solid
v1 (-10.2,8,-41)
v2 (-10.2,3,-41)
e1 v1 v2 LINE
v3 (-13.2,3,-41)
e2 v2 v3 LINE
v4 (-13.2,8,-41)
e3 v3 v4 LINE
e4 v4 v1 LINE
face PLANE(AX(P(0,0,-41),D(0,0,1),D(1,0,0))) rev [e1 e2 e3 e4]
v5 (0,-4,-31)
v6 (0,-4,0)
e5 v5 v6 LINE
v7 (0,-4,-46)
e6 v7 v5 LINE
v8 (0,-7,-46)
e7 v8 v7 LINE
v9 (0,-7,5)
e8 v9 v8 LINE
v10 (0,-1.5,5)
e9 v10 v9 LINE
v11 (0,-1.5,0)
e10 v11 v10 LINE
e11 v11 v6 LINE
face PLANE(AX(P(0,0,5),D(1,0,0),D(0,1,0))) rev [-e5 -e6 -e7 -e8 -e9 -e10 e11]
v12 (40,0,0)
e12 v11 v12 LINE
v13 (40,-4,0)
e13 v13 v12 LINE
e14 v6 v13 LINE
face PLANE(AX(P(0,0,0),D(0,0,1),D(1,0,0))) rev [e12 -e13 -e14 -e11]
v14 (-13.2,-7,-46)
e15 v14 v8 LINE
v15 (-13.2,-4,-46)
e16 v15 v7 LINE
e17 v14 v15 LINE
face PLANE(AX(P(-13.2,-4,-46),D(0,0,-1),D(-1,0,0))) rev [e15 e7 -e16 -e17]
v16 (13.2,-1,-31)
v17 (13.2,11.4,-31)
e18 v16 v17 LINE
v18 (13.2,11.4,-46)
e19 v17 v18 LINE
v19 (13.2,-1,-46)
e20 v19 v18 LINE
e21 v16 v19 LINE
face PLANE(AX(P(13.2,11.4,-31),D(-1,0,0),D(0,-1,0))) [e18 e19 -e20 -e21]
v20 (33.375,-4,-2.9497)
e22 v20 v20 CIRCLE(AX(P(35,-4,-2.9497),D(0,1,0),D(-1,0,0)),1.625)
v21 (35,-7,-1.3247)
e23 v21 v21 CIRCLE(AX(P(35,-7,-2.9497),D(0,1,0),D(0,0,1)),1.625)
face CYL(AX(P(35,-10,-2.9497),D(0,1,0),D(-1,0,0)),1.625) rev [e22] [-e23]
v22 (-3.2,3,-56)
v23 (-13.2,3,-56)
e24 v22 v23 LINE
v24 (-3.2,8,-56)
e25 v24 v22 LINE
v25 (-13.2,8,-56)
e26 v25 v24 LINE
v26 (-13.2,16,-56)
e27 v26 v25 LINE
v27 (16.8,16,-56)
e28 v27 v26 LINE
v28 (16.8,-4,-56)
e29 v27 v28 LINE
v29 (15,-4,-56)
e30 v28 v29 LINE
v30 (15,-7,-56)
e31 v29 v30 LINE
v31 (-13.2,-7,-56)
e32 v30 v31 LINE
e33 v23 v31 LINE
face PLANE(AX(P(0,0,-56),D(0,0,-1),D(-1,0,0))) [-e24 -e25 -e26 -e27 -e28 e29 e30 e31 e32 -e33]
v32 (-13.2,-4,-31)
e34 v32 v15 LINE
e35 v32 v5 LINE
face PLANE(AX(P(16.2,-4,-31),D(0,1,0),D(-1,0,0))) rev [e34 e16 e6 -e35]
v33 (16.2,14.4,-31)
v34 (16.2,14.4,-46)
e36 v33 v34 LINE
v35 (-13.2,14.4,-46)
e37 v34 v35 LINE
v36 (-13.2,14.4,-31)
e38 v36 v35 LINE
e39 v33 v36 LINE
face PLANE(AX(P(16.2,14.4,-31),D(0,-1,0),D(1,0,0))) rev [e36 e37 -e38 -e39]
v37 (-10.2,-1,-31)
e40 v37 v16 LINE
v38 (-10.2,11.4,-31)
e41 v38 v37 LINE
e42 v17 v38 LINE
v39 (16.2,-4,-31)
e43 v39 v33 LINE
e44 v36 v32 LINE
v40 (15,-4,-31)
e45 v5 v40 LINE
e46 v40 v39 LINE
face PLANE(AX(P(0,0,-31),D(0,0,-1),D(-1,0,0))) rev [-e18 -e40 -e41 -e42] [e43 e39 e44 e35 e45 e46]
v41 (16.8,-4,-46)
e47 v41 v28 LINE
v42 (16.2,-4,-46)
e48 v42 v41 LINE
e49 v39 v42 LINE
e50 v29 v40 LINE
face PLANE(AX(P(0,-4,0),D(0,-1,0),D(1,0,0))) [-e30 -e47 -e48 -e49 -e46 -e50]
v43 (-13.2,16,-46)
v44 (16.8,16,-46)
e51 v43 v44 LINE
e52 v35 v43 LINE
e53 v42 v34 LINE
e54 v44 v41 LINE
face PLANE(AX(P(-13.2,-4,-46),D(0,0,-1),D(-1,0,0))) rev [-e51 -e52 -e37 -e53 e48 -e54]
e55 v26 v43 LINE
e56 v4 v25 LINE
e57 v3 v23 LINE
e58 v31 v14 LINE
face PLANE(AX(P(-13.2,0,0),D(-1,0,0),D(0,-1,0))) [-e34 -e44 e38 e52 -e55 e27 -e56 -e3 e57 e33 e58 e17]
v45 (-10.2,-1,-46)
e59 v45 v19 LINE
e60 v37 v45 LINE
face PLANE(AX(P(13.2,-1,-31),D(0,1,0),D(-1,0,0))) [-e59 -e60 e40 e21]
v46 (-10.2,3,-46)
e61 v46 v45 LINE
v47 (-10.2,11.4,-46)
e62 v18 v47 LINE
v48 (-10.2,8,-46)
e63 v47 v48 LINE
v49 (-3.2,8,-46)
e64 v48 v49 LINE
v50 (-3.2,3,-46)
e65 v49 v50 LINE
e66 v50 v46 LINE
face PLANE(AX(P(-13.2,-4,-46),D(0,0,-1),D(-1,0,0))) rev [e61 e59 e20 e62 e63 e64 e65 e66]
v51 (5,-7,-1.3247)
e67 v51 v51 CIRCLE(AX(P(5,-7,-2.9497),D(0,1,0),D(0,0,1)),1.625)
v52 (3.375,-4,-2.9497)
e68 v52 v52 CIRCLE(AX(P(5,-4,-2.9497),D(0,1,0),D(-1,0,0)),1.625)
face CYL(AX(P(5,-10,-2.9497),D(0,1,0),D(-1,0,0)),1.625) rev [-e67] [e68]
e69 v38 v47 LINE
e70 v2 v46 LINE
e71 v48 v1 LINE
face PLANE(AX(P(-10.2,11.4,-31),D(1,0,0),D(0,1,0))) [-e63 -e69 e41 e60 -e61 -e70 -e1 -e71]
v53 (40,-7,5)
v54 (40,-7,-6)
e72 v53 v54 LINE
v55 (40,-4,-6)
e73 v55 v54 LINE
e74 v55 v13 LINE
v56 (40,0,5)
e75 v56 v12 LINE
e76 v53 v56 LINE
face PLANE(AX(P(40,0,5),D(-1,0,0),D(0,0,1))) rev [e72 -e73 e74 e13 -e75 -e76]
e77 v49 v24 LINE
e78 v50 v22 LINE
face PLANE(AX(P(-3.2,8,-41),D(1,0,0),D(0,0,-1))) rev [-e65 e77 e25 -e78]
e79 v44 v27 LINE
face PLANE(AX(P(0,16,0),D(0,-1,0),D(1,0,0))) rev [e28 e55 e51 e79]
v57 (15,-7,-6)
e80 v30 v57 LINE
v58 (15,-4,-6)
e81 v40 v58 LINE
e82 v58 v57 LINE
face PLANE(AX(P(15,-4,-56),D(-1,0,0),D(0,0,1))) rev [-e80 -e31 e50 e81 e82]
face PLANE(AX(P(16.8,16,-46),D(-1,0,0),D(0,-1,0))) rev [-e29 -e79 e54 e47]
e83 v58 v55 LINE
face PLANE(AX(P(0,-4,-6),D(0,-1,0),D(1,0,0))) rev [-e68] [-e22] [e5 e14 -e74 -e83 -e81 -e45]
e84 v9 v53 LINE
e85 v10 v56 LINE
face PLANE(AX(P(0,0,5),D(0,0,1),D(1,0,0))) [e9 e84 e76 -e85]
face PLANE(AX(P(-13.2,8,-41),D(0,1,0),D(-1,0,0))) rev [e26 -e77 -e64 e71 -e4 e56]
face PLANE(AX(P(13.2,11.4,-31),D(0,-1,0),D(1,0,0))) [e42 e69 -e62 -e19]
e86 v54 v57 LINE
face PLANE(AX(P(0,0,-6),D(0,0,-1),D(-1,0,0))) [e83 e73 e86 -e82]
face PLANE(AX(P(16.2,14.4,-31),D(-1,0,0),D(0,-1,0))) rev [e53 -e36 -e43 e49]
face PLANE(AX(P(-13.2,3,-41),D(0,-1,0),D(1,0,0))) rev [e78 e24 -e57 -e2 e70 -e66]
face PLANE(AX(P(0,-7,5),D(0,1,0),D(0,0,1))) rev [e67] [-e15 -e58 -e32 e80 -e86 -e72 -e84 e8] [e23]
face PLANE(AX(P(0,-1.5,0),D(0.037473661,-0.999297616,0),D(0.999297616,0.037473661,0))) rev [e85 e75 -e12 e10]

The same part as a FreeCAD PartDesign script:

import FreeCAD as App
import Part
import Sketcher
from FreeCAD import Vector


def add_polygon(sketch, points):
    """Adds a closed chain of lines whose ends are joined by coincident constraints."""
    first, n = sketch.GeometryCount, len(points)
    for a, b in zip(points, points[1:] + points[:1]):
        sketch.addGeometry(Part.LineSegment(App.Vector(*a, 0), App.Vector(*b, 0)), False)
    for i in range(n):
        sketch.addConstraint(Sketcher.Constraint("Coincident", first + i, 2, first + (i + 1) % n, 1))

doc = App.newDocument("Part")
params = doc.addObject("Spreadsheet::Sheet", "Params")
for row, (alias, value) in enumerate([
    ("sketch1_width", "40 mm"),
    ("sketch1_height", "7 mm"),
    ("pad1_length", "5 mm"),
    ("sketch2_width", "40 mm"),
    ("sketch2_height", "1.5 mm"),
    ("sketch3_width", "40 mm"),
    ("sketch3_height", "3 mm"),
    ("pad2_length", "6 mm"),
    ("sketch4_diameter", "3.25 mm"),
    ("pocket2_length", "6 mm"),
    ("sketch5_width", "15 mm"),
    ("sketch5_height", "3 mm"),
    ("pad3_length", "50 mm"),
    ("sketch6_width", "3 mm"),
    ("sketch6_height", "10 mm"),
    ("pad4_length", "13.2 mm"),
    ("sketch7_width", "30 mm"),
    ("sketch7_height", "10 mm"),
    ("pad5_length", "20 mm"),
    ("sketch8_width", "29.4 mm"),
    ("sketch8_width2", "23.4 mm"),
    ("sketch8_height", "18.4 mm"),
    ("sketch8_height2", "12.4 mm"),
    ("pad6_length", "15 mm"),
    ("sketch9_width", "10 mm"),
    ("sketch9_height", "5 mm"),
    ("pocket3_length", "15 mm"),
], start=1):
    params.set(f"A{row}", alias)
    params.set(f"B{row}", "=" + value)
    params.setAlias(f"B{row}", alias)

body = doc.addObject("PartDesign::Body", "Body")

sketch1 = body.newObject("Sketcher::SketchObject", "Sketch")
sketch1.AttachmentSupport = (doc.getObject("XY_Plane"), [""])
sketch1.MapMode = "FlatFace"
add_polygon(sketch1, [(0, 0), (0, -7), (40, -7), (40, 0)])
sketch1.addConstraint([
    Sketcher.Constraint("Vertical", 0),
    Sketcher.Constraint("Horizontal", 1),
    Sketcher.Constraint("Vertical", 2),
    Sketcher.Constraint("Horizontal", 3),
    Sketcher.Constraint("Coincident", 3, 2, -1, 1),
    Sketcher.Constraint("DistanceX", 1, 1, 1, 2, 40.0),
    Sketcher.Constraint("DistanceY", 0, 2, 0, 1, 7.0),
])
sketch1.setExpression("Constraints[9]", "Params.sketch1_width")
sketch1.setExpression("Constraints[10]", "Params.sketch1_height")
pad1 = body.newObject("PartDesign::Pad", "Pad")
pad1.Profile = sketch1
pad1.setExpression("Length", "Params.pad1_length")

sketch2 = body.newObject("Sketcher::SketchObject", "Sketch001")
sketch2.AttachmentSupport = (doc.getObject("XY_Plane"), [""])
sketch2.MapMode = "FlatFace"
sketch2.AttachmentOffset = App.Placement(Vector(0, 0, 5), App.Rotation())
add_polygon(sketch2, [(40, 0), (0, 0), (0, -1.5)])
sketch2.addConstraint([
    Sketcher.Constraint("Horizontal", 0),
    Sketcher.Constraint("Vertical", 1),
    Sketcher.Constraint("Coincident", 0, 2, -1, 1),
    Sketcher.Constraint("DistanceX", 0, 2, 0, 1, 40.0),
    Sketcher.Constraint("DistanceY", 1, 2, 1, 1, 1.5),
])
sketch2.setExpression("Constraints[6]", "Params.sketch2_width")
sketch2.setExpression("Constraints[7]", "Params.sketch2_height")
pocket1 = body.newObject("PartDesign::Pocket", "Pocket")
pocket1.Profile = sketch2
pocket1.Type = "ThroughAll"

sketch3 = body.newObject("Sketcher::SketchObject", "Sketch002")
sketch3.AttachmentSupport = (doc.getObject("XY_Plane"), [""])
sketch3.MapMode = "FlatFace"
add_polygon(sketch3, [(40, -4), (40, -7), (0, -7), (0, -4)])
sketch3.addConstraint([
    Sketcher.Constraint("Vertical", 0),
    Sketcher.Constraint("Horizontal", 1),
    Sketcher.Constraint("Vertical", 2),
    Sketcher.Constraint("Horizontal", 3),
    Sketcher.Constraint("PointOnObject", 1, 2, -2),
    Sketcher.Constraint("DistanceX", 1, 2, 1, 1, 40.0),
    Sketcher.Constraint("DistanceY", 0, 2, 0, 1, 3.0),
    Sketcher.Constraint("DistanceY", 0, 2, -1, 1, 7.0),
])
sketch3.setExpression("Constraints[9]", "Params.sketch3_width")
sketch3.setExpression("Constraints[10]", "Params.sketch3_height")
pad2 = body.newObject("PartDesign::Pad", "Pad001")
pad2.Profile = sketch3
pad2.setExpression("Length", "Params.pad2_length")
pad2.Reversed = True

sketch4 = body.newObject("Sketcher::SketchObject", "Sketch003")
sketch4.AttachmentSupport = (doc.getObject("XZ_Plane"), [""])
sketch4.MapMode = "FlatFace"
sketch4.AttachmentOffset = App.Placement(Vector(0, 0, 4), App.Rotation())
sketch4.addGeometry([
    Part.Circle(Vector(35, -2.9, 0), Vector(0, 0, 1), 1.6),
    Part.Circle(Vector(5, -2.9, 0), Vector(0, 0, 1), 1.6),
], False)
sketch4.addConstraint([
    Sketcher.Constraint("Equal", 0, 1),
    Sketcher.Constraint("Horizontal", 0, 3, 1, 3),
    Sketcher.Constraint("Diameter", 0, 3.25),
    Sketcher.Constraint("DistanceX", -1, 1, 0, 3, 35.0),
    Sketcher.Constraint("DistanceX", -1, 1, 1, 3, 5.0),
    Sketcher.Constraint("DistanceY", 0, 3, -1, 1, 2.9497),
])
sketch4.setExpression("Constraints[2]", "Params.sketch4_diameter")
pocket2 = body.newObject("PartDesign::Pocket", "Pocket001")
pocket2.Profile = sketch4
pocket2.setExpression("Length", "Params.pocket2_length")
pocket2.Reversed = True

sketch5 = body.newObject("Sketcher::SketchObject", "Sketch004")
sketch5.AttachmentSupport = (doc.getObject("XY_Plane"), [""])
sketch5.MapMode = "FlatFace"
sketch5.AttachmentOffset = App.Placement(Vector(0, 0, -6), App.Rotation())
add_polygon(sketch5, [(15, -4), (15, -7), (0, -7), (0, -4)])
sketch5.addConstraint([
    Sketcher.Constraint("Vertical", 0),
    Sketcher.Constraint("Horizontal", 1),
    Sketcher.Constraint("Vertical", 2),
    Sketcher.Constraint("Horizontal", 3),
    Sketcher.Constraint("PointOnObject", 1, 2, -2),
    Sketcher.Constraint("DistanceX", 1, 2, 1, 1, 15.0),
    Sketcher.Constraint("DistanceY", 0, 2, 0, 1, 3.0),
    Sketcher.Constraint("DistanceY", 0, 2, -1, 1, 7.0),
])
sketch5.setExpression("Constraints[9]", "Params.sketch5_width")
sketch5.setExpression("Constraints[10]", "Params.sketch5_height")
pad3 = body.newObject("PartDesign::Pad", "Pad002")
pad3.Profile = sketch5
pad3.setExpression("Length", "Params.pad3_length")
pad3.Reversed = True

sketch6 = body.newObject("Sketcher::SketchObject", "Sketch005")
sketch6.AttachmentSupport = (doc.getObject("YZ_Plane"), [""])
sketch6.MapMode = "FlatFace"
add_polygon(sketch6, [(-4, -56), (-7, -56), (-7, -46), (-4, -46)])
sketch6.addConstraint([
    Sketcher.Constraint("Horizontal", 0),
    Sketcher.Constraint("Vertical", 1),
    Sketcher.Constraint("Horizontal", 2),
    Sketcher.Constraint("Vertical", 3),
    Sketcher.Constraint("DistanceX", 0, 2, 0, 1, 3.0),
    Sketcher.Constraint("DistanceY", 1, 1, 1, 2, 10.0),
    Sketcher.Constraint("DistanceX", 0, 2, -1, 1, 7.0),
    Sketcher.Constraint("DistanceY", 0, 2, -1, 1, 56.0),
])
sketch6.setExpression("Constraints[8]", "Params.sketch6_width")
sketch6.setExpression("Constraints[9]", "Params.sketch6_height")
pad4 = body.newObject("PartDesign::Pad", "Pad003")
pad4.Profile = sketch6
pad4.setExpression("Length", "Params.pad4_length")
pad4.Reversed = True

sketch7 = body.newObject("Sketcher::SketchObject", "Sketch006")
sketch7.AttachmentSupport = (doc.getObject("XZ_Plane"), [""])
sketch7.MapMode = "FlatFace"
sketch7.AttachmentOffset = App.Placement(Vector(0, 0, 4), App.Rotation())
add_polygon(sketch7, [(-13, -56), (-13, -46), (17, -46), (17, -56)])
sketch7.addConstraint([
    Sketcher.Constraint("Vertical", 0),
    Sketcher.Constraint("Horizontal", 1),
    Sketcher.Constraint("Vertical", 2),
    Sketcher.Constraint("Horizontal", 3),
    Sketcher.Constraint("DistanceX", 1, 1, 1, 2, 30.0),
    Sketcher.Constraint("DistanceY", 0, 1, 0, 2, 10.0),
    Sketcher.Constraint("DistanceY", 0, 2, -1, 1, 46.0),
    Sketcher.Constraint("DistanceX", 0, 2, -1, 1, 13.2),
])
sketch7.setExpression("Constraints[8]", "Params.sketch7_width")
sketch7.setExpression("Constraints[9]", "Params.sketch7_height")
pad5 = body.newObject("PartDesign::Pad", "Pad004")
pad5.Profile = sketch7
pad5.setExpression("Length", "Params.pad5_length")
pad5.Reversed = True

sketch8 = body.newObject("Sketcher::SketchObject", "Sketch007")
sketch8.AttachmentSupport = (doc.getObject("XY_Plane"), [""])
sketch8.MapMode = "FlatFace"
sketch8.AttachmentOffset = App.Placement(Vector(0, 0, -46), App.Rotation())
add_polygon(sketch8, [(-13, 14), (-13, -4), (16, -4), (16, 14)])
add_polygon(sketch8, [(13, -1), (-10, -1), (-10, 11), (13, 11)])
sketch8.addConstraint([
    Sketcher.Constraint("Vertical", 0),
    Sketcher.Constraint("Horizontal", 1),
    Sketcher.Constraint("Vertical", 2),
    Sketcher.Constraint("Horizontal", 3),
    Sketcher.Constraint("Horizontal", 4),
    Sketcher.Constraint("Vertical", 5),
    Sketcher.Constraint("Horizontal", 6),
    Sketcher.Constraint("Vertical", 7),
    Sketcher.Constraint("DistanceX", 1, 1, 1, 2, 29.4),
    Sketcher.Constraint("DistanceX", 4, 2, 4, 1, 23.4),
    Sketcher.Constraint("DistanceY", 0, 2, 0, 1, 18.4),
    Sketcher.Constraint("DistanceY", 5, 1, 5, 2, 12.4),
    Sketcher.Constraint("DistanceY", 0, 2, -1, 1, 4.0),
    Sketcher.Constraint("DistanceY", 4, 2, -1, 1, 1.0),
    Sketcher.Constraint("DistanceX", 0, 2, 4, 2, 3.0),
    Sketcher.Constraint("DistanceX", 0, 2, -1, 1, 13.2),
])
sketch8.setExpression("Constraints[16]", "Params.sketch8_width")
sketch8.setExpression("Constraints[17]", "Params.sketch8_width2")
sketch8.setExpression("Constraints[18]", "Params.sketch8_height")
sketch8.setExpression("Constraints[19]", "Params.sketch8_height2")
pad6 = body.newObject("PartDesign::Pad", "Pad005")
pad6.Profile = sketch8
pad6.setExpression("Length", "Params.pad6_length")

sketch9 = body.newObject("Sketcher::SketchObject", "Sketch008")
sketch9.AttachmentSupport = (doc.getObject("XY_Plane"), [""])
sketch9.MapMode = "FlatFace"
sketch9.AttachmentOffset = App.Placement(Vector(0, 0, -56), App.Rotation())
add_polygon(sketch9, [(-3, 8), (-3, 3), (-13, 3), (-13, 8)])
sketch9.addConstraint([
    Sketcher.Constraint("Vertical", 0),
    Sketcher.Constraint("Horizontal", 1),
    Sketcher.Constraint("Vertical", 2),
    Sketcher.Constraint("Horizontal", 3),
    Sketcher.Constraint("DistanceX", 1, 2, 1, 1, 10.0),
    Sketcher.Constraint("DistanceY", 0, 2, 0, 1, 5.0),
    Sketcher.Constraint("DistanceY", -1, 1, 0, 2, 3.0),
    Sketcher.Constraint("DistanceX", 0, 2, -1, 1, 3.2),
])
sketch9.setExpression("Constraints[8]", "Params.sketch9_width")
sketch9.setExpression("Constraints[9]", "Params.sketch9_height")
pocket3 = body.newObject("PartDesign::Pocket", "Pocket002")
pocket3.Profile = sketch9
pocket3.setExpression("Length", "Params.pocket3_length")
pocket3.Reversed = True

doc.recompute()
